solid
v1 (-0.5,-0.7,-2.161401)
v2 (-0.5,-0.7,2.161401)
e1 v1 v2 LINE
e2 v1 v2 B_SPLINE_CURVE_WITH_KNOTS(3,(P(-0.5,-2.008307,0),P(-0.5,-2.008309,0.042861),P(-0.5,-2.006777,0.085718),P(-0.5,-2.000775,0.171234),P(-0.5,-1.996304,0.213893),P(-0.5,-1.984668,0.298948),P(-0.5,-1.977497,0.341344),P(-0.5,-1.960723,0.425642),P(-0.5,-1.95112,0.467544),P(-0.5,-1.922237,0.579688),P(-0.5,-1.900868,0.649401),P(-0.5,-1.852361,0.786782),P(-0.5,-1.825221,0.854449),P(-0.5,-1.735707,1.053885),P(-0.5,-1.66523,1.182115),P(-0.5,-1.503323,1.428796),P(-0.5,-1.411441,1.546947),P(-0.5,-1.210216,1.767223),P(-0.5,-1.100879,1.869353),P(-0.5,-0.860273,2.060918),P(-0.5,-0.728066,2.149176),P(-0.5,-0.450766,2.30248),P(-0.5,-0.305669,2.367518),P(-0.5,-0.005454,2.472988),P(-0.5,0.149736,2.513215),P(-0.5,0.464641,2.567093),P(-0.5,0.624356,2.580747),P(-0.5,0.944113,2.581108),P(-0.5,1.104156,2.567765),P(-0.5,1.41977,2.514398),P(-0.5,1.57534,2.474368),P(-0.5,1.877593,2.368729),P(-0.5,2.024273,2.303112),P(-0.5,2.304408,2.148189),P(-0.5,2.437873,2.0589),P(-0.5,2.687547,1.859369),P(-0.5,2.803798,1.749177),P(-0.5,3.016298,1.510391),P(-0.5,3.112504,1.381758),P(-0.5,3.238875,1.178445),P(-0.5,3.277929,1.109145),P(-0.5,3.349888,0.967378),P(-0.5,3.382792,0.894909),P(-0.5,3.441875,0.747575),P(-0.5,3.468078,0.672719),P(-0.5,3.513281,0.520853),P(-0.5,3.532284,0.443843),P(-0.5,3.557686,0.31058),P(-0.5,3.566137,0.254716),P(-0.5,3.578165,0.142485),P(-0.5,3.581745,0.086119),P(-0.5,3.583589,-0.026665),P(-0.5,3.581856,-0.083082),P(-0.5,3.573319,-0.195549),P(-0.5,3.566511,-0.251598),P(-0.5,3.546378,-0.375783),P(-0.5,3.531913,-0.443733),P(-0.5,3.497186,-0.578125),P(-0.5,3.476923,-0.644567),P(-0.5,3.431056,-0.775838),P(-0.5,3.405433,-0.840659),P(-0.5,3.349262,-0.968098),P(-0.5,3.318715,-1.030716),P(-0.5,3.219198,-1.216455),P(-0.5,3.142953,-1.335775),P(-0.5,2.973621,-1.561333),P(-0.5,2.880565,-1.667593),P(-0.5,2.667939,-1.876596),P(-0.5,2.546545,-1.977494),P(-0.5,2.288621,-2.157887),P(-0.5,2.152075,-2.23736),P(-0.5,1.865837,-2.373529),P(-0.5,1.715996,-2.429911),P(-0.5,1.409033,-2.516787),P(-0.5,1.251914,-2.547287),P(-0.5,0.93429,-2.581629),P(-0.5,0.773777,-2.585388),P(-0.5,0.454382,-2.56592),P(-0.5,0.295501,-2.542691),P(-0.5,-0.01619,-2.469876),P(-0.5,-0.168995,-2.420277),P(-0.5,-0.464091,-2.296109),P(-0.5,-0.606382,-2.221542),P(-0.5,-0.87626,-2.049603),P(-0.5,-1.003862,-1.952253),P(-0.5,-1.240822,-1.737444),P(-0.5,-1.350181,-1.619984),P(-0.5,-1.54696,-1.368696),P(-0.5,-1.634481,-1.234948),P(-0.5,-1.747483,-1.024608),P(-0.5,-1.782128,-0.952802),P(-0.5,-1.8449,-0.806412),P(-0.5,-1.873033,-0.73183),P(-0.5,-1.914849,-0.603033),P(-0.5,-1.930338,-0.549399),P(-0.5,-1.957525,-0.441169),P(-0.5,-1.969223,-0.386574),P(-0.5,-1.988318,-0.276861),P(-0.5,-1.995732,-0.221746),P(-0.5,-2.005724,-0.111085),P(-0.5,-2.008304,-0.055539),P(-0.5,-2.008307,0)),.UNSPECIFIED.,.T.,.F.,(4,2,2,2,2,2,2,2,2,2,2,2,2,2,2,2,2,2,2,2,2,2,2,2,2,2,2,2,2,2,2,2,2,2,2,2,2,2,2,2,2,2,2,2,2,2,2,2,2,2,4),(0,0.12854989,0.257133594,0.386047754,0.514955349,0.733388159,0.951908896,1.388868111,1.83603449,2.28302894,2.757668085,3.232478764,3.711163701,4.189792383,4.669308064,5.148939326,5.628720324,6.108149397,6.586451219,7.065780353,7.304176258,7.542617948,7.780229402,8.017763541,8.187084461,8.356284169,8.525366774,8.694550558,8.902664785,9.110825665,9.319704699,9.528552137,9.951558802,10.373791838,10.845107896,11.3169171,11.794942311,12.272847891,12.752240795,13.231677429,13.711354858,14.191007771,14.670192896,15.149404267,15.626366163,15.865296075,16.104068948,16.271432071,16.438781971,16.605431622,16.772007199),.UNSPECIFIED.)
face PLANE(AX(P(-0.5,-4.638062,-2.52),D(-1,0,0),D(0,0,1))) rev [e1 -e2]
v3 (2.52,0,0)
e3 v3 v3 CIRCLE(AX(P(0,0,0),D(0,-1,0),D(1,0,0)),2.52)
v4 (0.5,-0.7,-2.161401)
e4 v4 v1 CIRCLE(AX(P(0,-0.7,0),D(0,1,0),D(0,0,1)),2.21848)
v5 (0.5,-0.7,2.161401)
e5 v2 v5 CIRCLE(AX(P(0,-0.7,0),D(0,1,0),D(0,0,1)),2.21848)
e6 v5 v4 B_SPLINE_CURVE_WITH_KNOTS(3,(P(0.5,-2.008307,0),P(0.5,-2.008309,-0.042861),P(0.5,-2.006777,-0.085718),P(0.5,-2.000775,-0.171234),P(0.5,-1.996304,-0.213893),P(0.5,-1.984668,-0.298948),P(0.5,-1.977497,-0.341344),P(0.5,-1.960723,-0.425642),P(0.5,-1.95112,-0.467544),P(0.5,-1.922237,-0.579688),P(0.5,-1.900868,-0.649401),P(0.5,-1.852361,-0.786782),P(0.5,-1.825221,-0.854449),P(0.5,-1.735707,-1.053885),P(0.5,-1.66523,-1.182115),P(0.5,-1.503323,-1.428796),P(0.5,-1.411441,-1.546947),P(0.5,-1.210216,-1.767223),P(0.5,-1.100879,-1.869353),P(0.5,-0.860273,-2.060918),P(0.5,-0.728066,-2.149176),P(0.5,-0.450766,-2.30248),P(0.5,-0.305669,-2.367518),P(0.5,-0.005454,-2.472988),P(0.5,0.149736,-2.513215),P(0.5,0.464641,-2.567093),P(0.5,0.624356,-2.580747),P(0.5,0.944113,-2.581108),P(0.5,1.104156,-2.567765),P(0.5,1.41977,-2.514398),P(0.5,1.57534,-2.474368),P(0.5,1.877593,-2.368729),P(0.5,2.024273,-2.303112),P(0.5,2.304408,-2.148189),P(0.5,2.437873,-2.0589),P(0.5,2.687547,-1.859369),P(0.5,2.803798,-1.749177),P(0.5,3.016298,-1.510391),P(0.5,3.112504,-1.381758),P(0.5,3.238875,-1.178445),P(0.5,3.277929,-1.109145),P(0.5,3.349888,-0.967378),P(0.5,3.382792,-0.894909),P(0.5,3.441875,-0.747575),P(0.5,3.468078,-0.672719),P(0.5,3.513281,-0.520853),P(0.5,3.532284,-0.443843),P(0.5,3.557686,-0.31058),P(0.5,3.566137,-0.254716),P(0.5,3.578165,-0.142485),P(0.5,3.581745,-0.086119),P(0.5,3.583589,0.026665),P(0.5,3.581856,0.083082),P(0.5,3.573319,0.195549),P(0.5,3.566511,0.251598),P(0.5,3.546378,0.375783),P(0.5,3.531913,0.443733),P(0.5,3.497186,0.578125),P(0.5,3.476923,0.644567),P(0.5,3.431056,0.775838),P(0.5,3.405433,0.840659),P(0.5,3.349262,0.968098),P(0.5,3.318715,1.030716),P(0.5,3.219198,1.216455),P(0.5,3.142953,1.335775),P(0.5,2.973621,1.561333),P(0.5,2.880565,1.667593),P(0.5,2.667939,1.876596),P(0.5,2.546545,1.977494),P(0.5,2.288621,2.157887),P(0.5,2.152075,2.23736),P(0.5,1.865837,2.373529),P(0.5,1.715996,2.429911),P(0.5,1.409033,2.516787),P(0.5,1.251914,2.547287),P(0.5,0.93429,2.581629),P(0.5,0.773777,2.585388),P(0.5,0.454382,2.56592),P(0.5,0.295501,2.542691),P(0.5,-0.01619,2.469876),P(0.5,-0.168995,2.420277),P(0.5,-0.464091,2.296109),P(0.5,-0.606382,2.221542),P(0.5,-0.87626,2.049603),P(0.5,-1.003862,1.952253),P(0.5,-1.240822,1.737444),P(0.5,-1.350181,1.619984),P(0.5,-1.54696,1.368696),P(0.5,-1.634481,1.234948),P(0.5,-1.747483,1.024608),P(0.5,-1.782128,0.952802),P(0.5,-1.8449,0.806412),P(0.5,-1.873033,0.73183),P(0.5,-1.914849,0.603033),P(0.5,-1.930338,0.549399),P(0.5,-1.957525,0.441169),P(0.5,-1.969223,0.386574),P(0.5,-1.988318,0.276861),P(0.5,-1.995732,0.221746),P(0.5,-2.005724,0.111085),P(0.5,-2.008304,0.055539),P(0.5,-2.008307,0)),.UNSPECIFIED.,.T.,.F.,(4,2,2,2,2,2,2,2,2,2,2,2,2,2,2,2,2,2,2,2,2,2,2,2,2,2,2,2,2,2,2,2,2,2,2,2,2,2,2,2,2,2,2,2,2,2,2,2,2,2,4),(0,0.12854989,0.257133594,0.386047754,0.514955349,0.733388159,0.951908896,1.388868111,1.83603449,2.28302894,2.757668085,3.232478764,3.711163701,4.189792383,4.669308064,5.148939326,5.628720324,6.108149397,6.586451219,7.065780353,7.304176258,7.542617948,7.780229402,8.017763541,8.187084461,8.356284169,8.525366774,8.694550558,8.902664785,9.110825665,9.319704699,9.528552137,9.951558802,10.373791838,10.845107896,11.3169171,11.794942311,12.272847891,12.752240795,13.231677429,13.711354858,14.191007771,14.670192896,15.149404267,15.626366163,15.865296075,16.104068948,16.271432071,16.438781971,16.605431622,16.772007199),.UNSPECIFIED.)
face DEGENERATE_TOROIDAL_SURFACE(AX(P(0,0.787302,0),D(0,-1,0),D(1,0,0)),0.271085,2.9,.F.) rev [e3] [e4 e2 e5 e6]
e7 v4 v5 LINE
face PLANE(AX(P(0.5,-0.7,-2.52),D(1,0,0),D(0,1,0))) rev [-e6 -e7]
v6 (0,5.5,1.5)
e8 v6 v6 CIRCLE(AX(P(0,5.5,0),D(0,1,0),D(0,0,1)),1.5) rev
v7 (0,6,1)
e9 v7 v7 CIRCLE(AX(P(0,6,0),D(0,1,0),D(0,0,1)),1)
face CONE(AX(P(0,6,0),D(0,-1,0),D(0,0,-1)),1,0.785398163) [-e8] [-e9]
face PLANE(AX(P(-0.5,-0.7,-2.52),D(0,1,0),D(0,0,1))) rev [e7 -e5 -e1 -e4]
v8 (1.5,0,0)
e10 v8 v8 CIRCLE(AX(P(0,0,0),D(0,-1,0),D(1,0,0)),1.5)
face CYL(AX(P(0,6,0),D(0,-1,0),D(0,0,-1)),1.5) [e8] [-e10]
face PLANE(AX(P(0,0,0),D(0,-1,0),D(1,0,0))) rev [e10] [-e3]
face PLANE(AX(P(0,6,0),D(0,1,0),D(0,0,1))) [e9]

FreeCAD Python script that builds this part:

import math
import FreeCAD as App
import Part
import Sketcher
Q = App.Units.Quantity


def edges_at(feature, points):
    """Names of the edges that pass closest to the given points."""
    edges = feature.Shape.Edges
    near = lambda p: min(range(len(edges)), key=lambda i: edges[i].distToShape(Part.Vertex(*p))[0])
    return sorted({f"Edge{near(p) + 1}" for p in points})

doc = App.newDocument("Part")
body = doc.addObject("PartDesign::Body", "Body")

sketch1 = body.newObject("Sketcher::SketchObject", "Sketch")
sketch1.AttachmentSupport = (doc.getObject("XZ_Plane"), [""])
sketch1.MapMode = "FlatFace"
sketch1.addGeometry(Part.Circle(App.Vector(0, 0, 0), App.Vector(0, 0, 1), 1.5), False)
sketch1.addConstraint(Sketcher.Constraint("Coincident", 0, 3, -1, 1))
sketch1.addConstraint(Sketcher.Constraint("Diameter", 0, Q("3 mm")))
pad1 = body.newObject("PartDesign::Pad", "Pad")
pad1.Profile = sketch1
pad1.Length = 6
pad1.Reversed = True

sketch2 = body.newObject("Sketcher::SketchObject", "Sketch001")
sketch2.AttachmentSupport = (doc.getObject("XY_Plane"), [""])
sketch2.MapMode = "FlatFace"
sketch2.addGeometry(Part.LineSegment(App.Vector(0, 0, 0), App.Vector(-2.52, 0, 0)), False)
sketch2.addGeometry(Part.ArcOfCircle(Part.Circle(App.Vector(0.271085, 0.787302, 0), App.Vector(0, 0, 1), 2.9), math.radians(-164.24744), math.radians(-95.363702)), False)
sketch2.addGeometry(Part.LineSegment(App.Vector(0, -2.1, 0), App.Vector(0, 0, 0)), False)
sketch2.addConstraint(Sketcher.Constraint("Coincident", 0, 2, 1, 1))
sketch2.addConstraint(Sketcher.Constraint("Coincident", 1, 2, 2, 1))
sketch2.addConstraint(Sketcher.Constraint("Coincident", 2, 2, 0, 1))
sketch2.addConstraint(Sketcher.Constraint("Horizontal", 0))
sketch2.addConstraint(Sketcher.Constraint("Vertical", 2))
sketch2.addConstraint(Sketcher.Constraint("Coincident", 2, 2, -1, 1))
sketch2.addConstraint(Sketcher.Constraint("Radius", 1, Q("2.9 mm")))
sketch2.addConstraint(Sketcher.Constraint("DistanceY", 2, 1, 2, 2, Q("2.1 mm")))
sketch2.addConstraint(Sketcher.Constraint("DistanceX", 0, 2, 0, 1, Q("2.52 mm")))
revolution = body.newObject("PartDesign::Revolution", "Revolution")
revolution.Profile = sketch2
revolution.ReferenceAxis = (sketch2, ["V_Axis"])
revolution.Angle = 360

sketch3 = body.newObject("Sketcher::SketchObject", "Sketch002")
sketch3.AttachmentSupport = (doc.getObject("XY_Plane"), [""])
sketch3.MapMode = "FlatFace"
sketch3.addGeometry(Part.LineSegment(App.Vector(0.5, -0.7, 0), App.Vector(-0.5, -0.7, 0)), False)
sketch3.addGeometry(Part.LineSegment(App.Vector(-0.5, -0.7, 0), App.Vector(-0.5, -4.638062, 0)), False)
sketch3.addGeometry(Part.LineSegment(App.Vector(-0.5, -4.638062, 0), App.Vector(0.5, -4.638062, 0)), False)
sketch3.addGeometry(Part.LineSegment(App.Vector(0.5, -4.638062, 0), App.Vector(0.5, -0.7, 0)), False)
sketch3.addConstraint(Sketcher.Constraint("Coincident", 0, 2, 1, 1))
sketch3.addConstraint(Sketcher.Constraint("Coincident", 1, 2, 2, 1))
sketch3.addConstraint(Sketcher.Constraint("Coincident", 2, 2, 3, 1))
sketch3.addConstraint(Sketcher.Constraint("Coincident", 3, 2, 0, 1))
sketch3.addConstraint(Sketcher.Constraint("Horizontal", 0))
sketch3.addConstraint(Sketcher.Constraint("Vertical", 1))
sketch3.addConstraint(Sketcher.Constraint("Horizontal", 2))
sketch3.addConstraint(Sketcher.Constraint("Vertical", 3))
sketch3.addConstraint(Sketcher.Constraint("DistanceX", 0, 2, 0, 1, Q("1 mm")))
sketch3.addConstraint(Sketcher.Constraint("DistanceX", 0, 2, -1, 1, Q("0.5 mm")))
sketch3.addConstraint(Sketcher.Constraint("DistanceY", 0, 2, -1, 1, Q("0.7 mm")))
sketch3.addConstraint(Sketcher.Constraint("DistanceY", 1, 2, 1, 1, Q("3.938062 mm")))
pocket1 = body.newObject("PartDesign::Pocket", "Pocket")
pocket1.Profile = sketch3
pocket1.Type = "ThroughAll"
pocket1.Midplane = True
doc.recompute()

chamfer = body.newObject("PartDesign::Chamfer", "Chamfer")
chamfer.Base = (pocket1, edges_at(pocket1, [(0, 6, -1.5)]))
chamfer.Size = 0.5

doc.recompute()
